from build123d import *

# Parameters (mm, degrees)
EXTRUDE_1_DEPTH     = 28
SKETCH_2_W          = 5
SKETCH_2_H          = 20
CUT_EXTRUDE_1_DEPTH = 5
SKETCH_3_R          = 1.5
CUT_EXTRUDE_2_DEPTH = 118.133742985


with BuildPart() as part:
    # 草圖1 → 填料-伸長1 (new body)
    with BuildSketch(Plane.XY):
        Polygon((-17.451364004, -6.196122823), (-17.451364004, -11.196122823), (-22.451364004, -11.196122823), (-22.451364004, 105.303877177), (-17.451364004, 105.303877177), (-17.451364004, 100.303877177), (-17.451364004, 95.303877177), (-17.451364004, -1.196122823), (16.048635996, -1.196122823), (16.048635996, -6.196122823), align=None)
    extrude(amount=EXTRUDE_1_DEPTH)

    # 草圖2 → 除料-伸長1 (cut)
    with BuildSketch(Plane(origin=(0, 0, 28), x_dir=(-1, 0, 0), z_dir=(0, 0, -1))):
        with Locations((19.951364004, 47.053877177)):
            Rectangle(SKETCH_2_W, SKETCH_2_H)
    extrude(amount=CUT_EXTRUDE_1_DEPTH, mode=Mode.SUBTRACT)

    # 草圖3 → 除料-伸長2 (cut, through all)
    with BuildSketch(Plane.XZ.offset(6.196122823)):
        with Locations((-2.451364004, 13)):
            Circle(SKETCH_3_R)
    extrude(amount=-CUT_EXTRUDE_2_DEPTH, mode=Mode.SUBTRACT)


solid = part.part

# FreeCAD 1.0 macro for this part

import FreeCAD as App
import Part
import Sketcher

V = App.Vector


def add_polygon(sketch, points):
    """Adds a closed chain of lines whose ends are joined by coincident constraints."""
    first, n = sketch.GeometryCount, len(points)
    for a, b in zip(points, points[1:] + points[:1]):
        sketch.addGeometry(Part.LineSegment(App.Vector(*a, 0), App.Vector(*b, 0)), False)
    for i in range(n):
        sketch.addConstraint(Sketcher.Constraint("Coincident", first + i, 2, first + (i + 1) % n, 1))

doc = App.newDocument("Part")
body = doc.addObject("PartDesign::Body", "Body")

# Sketch on XY plane
sketch1 = body.newObject("Sketcher::SketchObject", "Sketch")
sketch1.AttachmentSupport = (doc.getObject("XY_Plane"), [""])
sketch1.MapMode = "FlatFace"
add_polygon(sketch1, [(-17.451364, -11.196123), (-17.451364, -6.196123), (16.048636, -6.196123), (16.048636, -1.196123), (-17.451364, -1.196123), (-17.451364, 105.303877), (-22.451364, 105.303877), (-22.451364, -11.196123)])  # lines 0-7
sketch1.addConstraint(Sketcher.Constraint("Vertical", 0))
sketch1.addConstraint(Sketcher.Constraint("Horizontal", 1))
sketch1.addConstraint(Sketcher.Constraint("Vertical", 2))
sketch1.addConstraint(Sketcher.Constraint("Horizontal", 3))
sketch1.addConstraint(Sketcher.Constraint("Vertical", 4))
sketch1.addConstraint(Sketcher.Constraint("Horizontal", 5))
sketch1.addConstraint(Sketcher.Constraint("Vertical", 6))
sketch1.addConstraint(Sketcher.Constraint("Horizontal", 7))
sketch1.addConstraint(Sketcher.Constraint("Vertical", 0, 2, 3, 2))
sketch1.addConstraint(Sketcher.Constraint("Equal", 7, 0))
sketch1.addConstraint(Sketcher.Constraint("Equal", 0, 2))
sketch1.addConstraint(Sketcher.Constraint("DistanceX", 5, 2, 5, 1, 5.0))
sketch1.addConstraint(Sketcher.Constraint("DistanceX", 1, 1, 1, 2, 33.5))
sketch1.addConstraint(Sketcher.Constraint("DistanceY", 4, 1, 4, 2, 106.5))
sketch1.addConstraint(Sketcher.Constraint("DistanceX", 0, 2, -1, 1, 17.451364))
sketch1.addConstraint(Sketcher.Constraint("DistanceY", 0, 2, -1, 1, 6.196123))
pad1 = body.newObject("PartDesign::Pad", "Pad")
pad1.Profile = sketch1
pad1.Length = 28

# Sketch on XY plane
sketch2 = body.newObject("Sketcher::SketchObject", "Sketch001")
sketch2.AttachmentSupport = (doc.getObject("XY_Plane"), [""])
sketch2.MapMode = "FlatFace"
sketch2.AttachmentOffset = App.Placement(V(0, 0, 28), App.Rotation())
add_polygon(sketch2, [(-17.451364, 57.053877), (-17.451364, 37.053877), (-22.451364, 37.053877), (-22.451364, 57.053877)])  # lines 0-3
sketch2.addConstraint(Sketcher.Constraint("Vertical", 0))
sketch2.addConstraint(Sketcher.Constraint("Horizontal", 1))
sketch2.addConstraint(Sketcher.Constraint("Vertical", 2))
sketch2.addConstraint(Sketcher.Constraint("Horizontal", 3))
sketch2.addConstraint(Sketcher.Constraint("DistanceX", 1, 2, 1, 1, 5.0))
sketch2.addConstraint(Sketcher.Constraint("DistanceY", 0, 2, 0, 1, 20.0))
sketch2.addConstraint(Sketcher.Constraint("DistanceX", 0, 2, -1, 1, 17.451364))
sketch2.addConstraint(Sketcher.Constraint("DistanceY", -1, 1, 0, 2, 37.053877))
pocket1 = body.newObject("PartDesign::Pocket", "Pocket")
pocket1.Profile = sketch2
pocket1.Length = 5

# Sketch on XZ plane
sketch3 = body.newObject("Sketcher::SketchObject", "Sketch002")
sketch3.AttachmentSupport = (doc.getObject("XZ_Plane"), [""])
sketch3.MapMode = "FlatFace"
sketch3.AttachmentOffset = App.Placement(V(0, 0, 6.196123), App.Rotation())
sketch3.addGeometry(Part.Circle(V(-2.451364, 13, 0), V(0, 0, 1), 1.5), False)
sketch3.addConstraint(Sketcher.Constraint("Diameter", 0, 3.0))
sketch3.addConstraint(Sketcher.Constraint("DistanceY", -1, 1, 0, 3, 13.0))
sketch3.addConstraint(Sketcher.Constraint("DistanceX", 0, 3, -1, 1, 2.451364))
pocket2 = body.newObject("PartDesign::Pocket", "Pocket001")
pocket2.Profile = sketch3
pocket2.Type = "ThroughAll"

doc.recompute()
